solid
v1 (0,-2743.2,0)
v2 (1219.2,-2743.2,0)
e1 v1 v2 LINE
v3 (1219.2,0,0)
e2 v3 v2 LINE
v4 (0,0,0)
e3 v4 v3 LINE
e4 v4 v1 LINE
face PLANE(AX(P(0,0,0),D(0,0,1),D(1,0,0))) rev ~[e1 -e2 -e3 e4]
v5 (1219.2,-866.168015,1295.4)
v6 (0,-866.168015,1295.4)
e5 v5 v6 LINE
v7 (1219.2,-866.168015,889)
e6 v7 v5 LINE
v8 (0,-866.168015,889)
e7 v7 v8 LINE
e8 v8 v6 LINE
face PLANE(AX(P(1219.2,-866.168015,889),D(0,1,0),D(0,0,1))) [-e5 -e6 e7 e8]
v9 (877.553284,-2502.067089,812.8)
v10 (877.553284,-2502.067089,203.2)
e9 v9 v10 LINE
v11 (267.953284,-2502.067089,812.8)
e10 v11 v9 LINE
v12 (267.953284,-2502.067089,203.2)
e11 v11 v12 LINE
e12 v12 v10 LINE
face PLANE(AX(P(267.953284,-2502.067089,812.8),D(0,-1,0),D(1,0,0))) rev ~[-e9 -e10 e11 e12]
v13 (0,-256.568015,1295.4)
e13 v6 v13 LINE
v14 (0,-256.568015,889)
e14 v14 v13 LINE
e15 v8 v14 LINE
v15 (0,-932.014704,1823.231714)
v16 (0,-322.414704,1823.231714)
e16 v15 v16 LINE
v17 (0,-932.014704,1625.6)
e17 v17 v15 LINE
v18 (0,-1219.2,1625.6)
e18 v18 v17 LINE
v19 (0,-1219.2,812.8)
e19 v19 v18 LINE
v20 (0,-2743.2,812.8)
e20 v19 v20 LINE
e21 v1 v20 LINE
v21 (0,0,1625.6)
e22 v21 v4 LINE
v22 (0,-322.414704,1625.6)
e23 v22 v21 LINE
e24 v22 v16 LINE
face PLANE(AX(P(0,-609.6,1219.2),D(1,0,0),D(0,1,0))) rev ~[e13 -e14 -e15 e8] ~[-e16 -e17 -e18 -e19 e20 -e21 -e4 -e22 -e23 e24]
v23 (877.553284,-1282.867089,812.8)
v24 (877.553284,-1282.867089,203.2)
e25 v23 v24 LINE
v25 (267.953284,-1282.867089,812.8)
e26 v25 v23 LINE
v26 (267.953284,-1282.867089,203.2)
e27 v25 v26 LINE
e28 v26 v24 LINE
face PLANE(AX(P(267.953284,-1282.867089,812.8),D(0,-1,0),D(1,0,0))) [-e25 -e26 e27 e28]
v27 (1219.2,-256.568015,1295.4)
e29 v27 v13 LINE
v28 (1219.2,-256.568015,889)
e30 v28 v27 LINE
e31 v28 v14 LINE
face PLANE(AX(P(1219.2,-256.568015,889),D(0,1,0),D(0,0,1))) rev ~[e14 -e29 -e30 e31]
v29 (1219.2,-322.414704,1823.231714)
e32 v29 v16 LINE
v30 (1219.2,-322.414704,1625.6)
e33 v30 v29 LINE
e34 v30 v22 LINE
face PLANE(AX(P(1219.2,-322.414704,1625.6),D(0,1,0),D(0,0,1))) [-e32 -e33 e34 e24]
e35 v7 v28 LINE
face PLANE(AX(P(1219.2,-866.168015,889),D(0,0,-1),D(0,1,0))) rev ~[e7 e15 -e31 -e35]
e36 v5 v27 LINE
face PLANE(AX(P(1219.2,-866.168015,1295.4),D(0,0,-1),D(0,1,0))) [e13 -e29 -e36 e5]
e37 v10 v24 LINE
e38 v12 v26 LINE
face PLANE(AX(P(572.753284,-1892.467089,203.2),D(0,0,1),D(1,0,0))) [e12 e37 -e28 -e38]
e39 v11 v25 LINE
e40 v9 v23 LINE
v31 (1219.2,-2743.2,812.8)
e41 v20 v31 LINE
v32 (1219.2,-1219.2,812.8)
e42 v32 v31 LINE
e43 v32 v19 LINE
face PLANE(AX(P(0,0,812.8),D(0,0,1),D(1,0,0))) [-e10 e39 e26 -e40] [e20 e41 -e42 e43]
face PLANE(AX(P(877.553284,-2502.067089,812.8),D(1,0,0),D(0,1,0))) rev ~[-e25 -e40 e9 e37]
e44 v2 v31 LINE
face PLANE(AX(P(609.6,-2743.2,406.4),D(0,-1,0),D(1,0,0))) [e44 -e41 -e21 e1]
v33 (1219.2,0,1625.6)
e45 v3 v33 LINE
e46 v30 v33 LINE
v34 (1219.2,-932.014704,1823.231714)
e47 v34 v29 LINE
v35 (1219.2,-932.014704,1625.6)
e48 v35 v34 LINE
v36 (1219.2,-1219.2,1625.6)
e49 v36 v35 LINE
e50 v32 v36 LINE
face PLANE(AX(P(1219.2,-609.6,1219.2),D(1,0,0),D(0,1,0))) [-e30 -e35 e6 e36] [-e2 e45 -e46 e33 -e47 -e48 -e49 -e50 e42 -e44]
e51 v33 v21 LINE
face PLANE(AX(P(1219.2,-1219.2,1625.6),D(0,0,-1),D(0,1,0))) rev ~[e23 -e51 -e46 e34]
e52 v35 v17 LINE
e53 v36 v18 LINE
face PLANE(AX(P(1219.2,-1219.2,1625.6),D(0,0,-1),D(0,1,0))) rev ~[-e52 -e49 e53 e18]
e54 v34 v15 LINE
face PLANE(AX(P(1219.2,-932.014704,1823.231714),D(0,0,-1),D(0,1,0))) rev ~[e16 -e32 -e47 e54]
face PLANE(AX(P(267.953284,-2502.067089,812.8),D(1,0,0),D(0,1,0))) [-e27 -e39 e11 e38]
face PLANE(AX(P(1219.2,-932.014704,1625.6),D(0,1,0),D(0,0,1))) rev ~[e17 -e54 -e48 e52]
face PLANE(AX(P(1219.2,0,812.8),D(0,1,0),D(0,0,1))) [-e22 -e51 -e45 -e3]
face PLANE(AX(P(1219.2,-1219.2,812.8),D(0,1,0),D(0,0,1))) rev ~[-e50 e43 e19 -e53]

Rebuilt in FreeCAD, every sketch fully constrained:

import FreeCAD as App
import Part
import Sketcher
from FreeCAD import Vector
Q = App.Units.Quantity

doc = App.newDocument("Part")
body = doc.addObject("PartDesign::Body", "Body")

# Sketch on XZ plane
sketch1 = body.newObject("Sketcher::SketchObject", "Sketch")
sketch1.AttachmentSupport = (doc.getObject("XZ_Plane"), [""])
sketch1.MapMode = "FlatFace"
sketch1.addGeometry(Part.LineSegment(Vector(0, 812.8, 0), Vector(0, 0, 0)), False)
sketch1.addGeometry(Part.LineSegment(Vector(0, 0, 0), Vector(1219.2, 0, 0)), False)
sketch1.addGeometry(Part.LineSegment(Vector(1219.2, 0, 0), Vector(1219.2, 812.8, 0)), False)
sketch1.addGeometry(Part.LineSegment(Vector(1219.2, 812.8, 0), Vector(0, 812.8, 0)), False)
sketch1.addConstraint(Sketcher.Constraint("Coincident", 0, 2, 1, 1))
sketch1.addConstraint(Sketcher.Constraint("Coincident", 1, 2, 2, 1))
sketch1.addConstraint(Sketcher.Constraint("Coincident", 2, 2, 3, 1))
sketch1.addConstraint(Sketcher.Constraint("Coincident", 3, 2, 0, 1))
sketch1.addConstraint(Sketcher.Constraint("Vertical", 0))
sketch1.addConstraint(Sketcher.Constraint("Horizontal", 1))
sketch1.addConstraint(Sketcher.Constraint("Vertical", 2))
sketch1.addConstraint(Sketcher.Constraint("Horizontal", 3))
sketch1.addConstraint(Sketcher.Constraint("Coincident", 0, 2, -1, 1))
sketch1.addConstraint(Sketcher.Constraint("DistanceX", 1, 1, 1, 2, Q("48 in")))
sketch1.addConstraint(Sketcher.Constraint("DistanceY", 0, 2, 0, 1, Q("32 in")))
pad1 = body.newObject("PartDesign::Pad", "Pad")
pad1.Profile = sketch1
pad1.Length = Q("108 in")

# Sketch on YZ plane
sketch2 = body.newObject("Sketcher::SketchObject", "Sketch001")
sketch2.AttachmentSupport = (doc.getObject("YZ_Plane"), [""])
sketch2.MapMode = "FlatFace"
sketch2.AttachmentOffset = App.Placement(Vector(0, 0, 48 * 25.4), App.Rotation())
sketch2.addGeometry(Part.LineSegment(Vector(-1219.2, 1625.6, 0), Vector(-1219.2, 812.8, 0)), False)
sketch2.addGeometry(Part.LineSegment(Vector(-1219.2, 812.8, 0), Vector(0, 812.8, 0)), False)
sketch2.addGeometry(Part.LineSegment(Vector(0, 812.8, 0), Vector(0, 1625.6, 0)), False)
sketch2.addGeometry(Part.LineSegment(Vector(0, 1625.6, 0), Vector(-1219.2, 1625.6, 0)), False)
sketch2.addConstraint(Sketcher.Constraint("Coincident", 0, 2, 1, 1))
sketch2.addConstraint(Sketcher.Constraint("Coincident", 1, 2, 2, 1))
sketch2.addConstraint(Sketcher.Constraint("Coincident", 2, 2, 3, 1))
sketch2.addConstraint(Sketcher.Constraint("Coincident", 3, 2, 0, 1))
sketch2.addConstraint(Sketcher.Constraint("Vertical", 0))
sketch2.addConstraint(Sketcher.Constraint("Horizontal", 1))
sketch2.addConstraint(Sketcher.Constraint("Vertical", 2))
sketch2.addConstraint(Sketcher.Constraint("Horizontal", 3))
sketch2.addConstraint(Sketcher.Constraint("PointOnObject", 1, 2, -2))
sketch2.addConstraint(Sketcher.Constraint("DistanceX", 1, 1, 1, 2, Q("48 in")))
sketch2.addConstraint(Sketcher.Constraint("DistanceY", 0, 2, 0, 1, Q("32 in")))
sketch2.addConstraint(Sketcher.Constraint("DistanceY", -1, 1, 0, 2, Q("32 in")))
pad2 = body.newObject("PartDesign::Pad", "Pad001")
pad2.Profile = sketch2
pad2.Length = Q("48 in")
pad2.Reversed = True

# Sketch on YZ plane
sketch3 = body.newObject("Sketcher::SketchObject", "Sketch002")
sketch3.AttachmentSupport = (doc.getObject("YZ_Plane"), [""])
sketch3.MapMode = "FlatFace"
sketch3.AttachmentOffset = App.Placement(Vector(0, 0, 48 * 25.4), App.Rotation())
sketch3.addGeometry(Part.LineSegment(Vector(-932.014704, 1823.231714, 0), Vector(-932.014704, 1625.6, 0)), False)
sketch3.addGeometry(Part.LineSegment(Vector(-932.014704, 1625.6, 0), Vector(-322.414704, 1625.6, 0)), False)
sketch3.addGeometry(Part.LineSegment(Vector(-322.414704, 1625.6, 0), Vector(-322.414704, 1823.231714, 0)), False)
sketch3.addGeometry(Part.LineSegment(Vector(-322.414704, 1823.231714, 0), Vector(-932.014704, 1823.231714, 0)), False)
sketch3.addConstraint(Sketcher.Constraint("Coincident", 0, 2, 1, 1))
sketch3.addConstraint(Sketcher.Constraint("Coincident", 1, 2, 2, 1))
sketch3.addConstraint(Sketcher.Constraint("Coincident", 2, 2, 3, 1))
sketch3.addConstraint(Sketcher.Constraint("Coincident", 3, 2, 0, 1))
sketch3.addConstraint(Sketcher.Constraint("Vertical", 0))
sketch3.addConstraint(Sketcher.Constraint("Horizontal", 1))
sketch3.addConstraint(Sketcher.Constraint("Vertical", 2))
sketch3.addConstraint(Sketcher.Constraint("Horizontal", 3))
sketch3.addConstraint(Sketcher.Constraint("DistanceX", 1, 1, 1, 2, Q("24 in")))
sketch3.addConstraint(Sketcher.Constraint("DistanceY", -1, 1, 0, 2, Q("64 in")))
sketch3.addConstraint(Sketcher.Constraint("DistanceY", 0, 2, 0, 1, 197.631714))
sketch3.addConstraint(Sketcher.Constraint("DistanceX", 0, 2, -1, 1, 932.014704))
pad3 = body.newObject("PartDesign::Pad", "Pad002")
pad3.Profile = sketch3
pad3.Length = Q("48 in")
pad3.Reversed = True

# Sketch on YZ plane
sketch4 = body.newObject("Sketcher::SketchObject", "Sketch003")
sketch4.AttachmentSupport = (doc.getObject("YZ_Plane"), [""])
sketch4.MapMode = "FlatFace"
sketch4.AttachmentOffset = App.Placement(Vector(0, 0, 48 * 25.4), App.Rotation())
sketch4.addGeometry(Part.LineSegment(Vector(-866.168015, 1295.4, 0), Vector(-866.168015, 889, 0)), False)
sketch4.addGeometry(Part.LineSegment(Vector(-866.168015, 889, 0), Vector(-256.568015, 889, 0)), False)
sketch4.addGeometry(Part.LineSegment(Vector(-256.568015, 889, 0), Vector(-256.568015, 1295.4, 0)), False)
sketch4.addGeometry(Part.LineSegment(Vector(-256.568015, 1295.4, 0), Vector(-866.168015, 1295.4, 0)), False)
sketch4.addConstraint(Sketcher.Constraint("Coincident", 0, 2, 1, 1))
sketch4.addConstraint(Sketcher.Constraint("Coincident", 1, 2, 2, 1))
sketch4.addConstraint(Sketcher.Constraint("Coincident", 2, 2, 3, 1))
sketch4.addConstraint(Sketcher.Constraint("Coincident", 3, 2, 0, 1))
sketch4.addConstraint(Sketcher.Constraint("Vertical", 0))
sketch4.addConstraint(Sketcher.Constraint("Horizontal", 1))
sketch4.addConstraint(Sketcher.Constraint("Vertical", 2))
sketch4.addConstraint(Sketcher.Constraint("Horizontal", 3))
sketch4.addConstraint(Sketcher.Constraint("DistanceX", 1, 1, 1, 2, Q("24 in")))
sketch4.addConstraint(Sketcher.Constraint("DistanceY", 0, 2, 0, 1, Q("16 in")))
sketch4.addConstraint(Sketcher.Constraint("DistanceY", -1, 1, 0, 2, Q("35 in")))
sketch4.addConstraint(Sketcher.Constraint("DistanceX", 0, 2, -1, 1, 866.168015))
pocket1 = body.newObject("PartDesign::Pocket", "Pocket")
pocket1.Profile = sketch4
pocket1.Length = Q("48 in")

# Sketch on XY plane
sketch5 = body.newObject("Sketcher::SketchObject", "Sketch004")
sketch5.AttachmentSupport = (doc.getObject("XY_Plane"), [""])
sketch5.MapMode = "FlatFace"
sketch5.AttachmentOffset = App.Placement(Vector(0, 0, 32 * 25.4), App.Rotation())
sketch5.addGeometry(Part.LineSegment(Vector(267.953284, -1282.867089, 0), Vector(267.953284, -2502.067089, 0)), False)
sketch5.addGeometry(Part.LineSegment(Vector(267.953284, -2502.067089, 0), Vector(877.553284, -2502.067089, 0)), False)
sketch5.addGeometry(Part.LineSegment(Vector(877.553284, -2502.067089, 0), Vector(877.553284, -1282.867089, 0)), False)
sketch5.addGeometry(Part.LineSegment(Vector(877.553284, -1282.867089, 0), Vector(267.953284, -1282.867089, 0)), False)
sketch5.addConstraint(Sketcher.Constraint("Coincident", 0, 2, 1, 1))
sketch5.addConstraint(Sketcher.Constraint("Coincident", 1, 2, 2, 1))
sketch5.addConstraint(Sketcher.Constraint("Coincident", 2, 2, 3, 1))
sketch5.addConstraint(Sketcher.Constraint("Coincident", 3, 2, 0, 1))
sketch5.addConstraint(Sketcher.Constraint("Vertical", 0))
sketch5.addConstraint(Sketcher.Constraint("Horizontal", 1))
sketch5.addConstraint(Sketcher.Constraint("Vertical", 2))
sketch5.addConstraint(Sketcher.Constraint("Horizontal", 3))
sketch5.addConstraint(Sketcher.Constraint("DistanceX", 1, 1, 1, 2, Q("24 in")))
sketch5.addConstraint(Sketcher.Constraint("DistanceY", 0, 2, 0, 1, Q("48 in")))
sketch5.addConstraint(Sketcher.Constraint("DistanceY", 0, 2, -1, 1, 2502.067089))
sketch5.addConstraint(Sketcher.Constraint("DistanceX", -1, 1, 0, 2, 267.953284))
pocket2 = body.newObject("PartDesign::Pocket", "Pocket001")
pocket2.Profile = sketch5
pocket2.Length = Q("24 in")

doc.recompute()
